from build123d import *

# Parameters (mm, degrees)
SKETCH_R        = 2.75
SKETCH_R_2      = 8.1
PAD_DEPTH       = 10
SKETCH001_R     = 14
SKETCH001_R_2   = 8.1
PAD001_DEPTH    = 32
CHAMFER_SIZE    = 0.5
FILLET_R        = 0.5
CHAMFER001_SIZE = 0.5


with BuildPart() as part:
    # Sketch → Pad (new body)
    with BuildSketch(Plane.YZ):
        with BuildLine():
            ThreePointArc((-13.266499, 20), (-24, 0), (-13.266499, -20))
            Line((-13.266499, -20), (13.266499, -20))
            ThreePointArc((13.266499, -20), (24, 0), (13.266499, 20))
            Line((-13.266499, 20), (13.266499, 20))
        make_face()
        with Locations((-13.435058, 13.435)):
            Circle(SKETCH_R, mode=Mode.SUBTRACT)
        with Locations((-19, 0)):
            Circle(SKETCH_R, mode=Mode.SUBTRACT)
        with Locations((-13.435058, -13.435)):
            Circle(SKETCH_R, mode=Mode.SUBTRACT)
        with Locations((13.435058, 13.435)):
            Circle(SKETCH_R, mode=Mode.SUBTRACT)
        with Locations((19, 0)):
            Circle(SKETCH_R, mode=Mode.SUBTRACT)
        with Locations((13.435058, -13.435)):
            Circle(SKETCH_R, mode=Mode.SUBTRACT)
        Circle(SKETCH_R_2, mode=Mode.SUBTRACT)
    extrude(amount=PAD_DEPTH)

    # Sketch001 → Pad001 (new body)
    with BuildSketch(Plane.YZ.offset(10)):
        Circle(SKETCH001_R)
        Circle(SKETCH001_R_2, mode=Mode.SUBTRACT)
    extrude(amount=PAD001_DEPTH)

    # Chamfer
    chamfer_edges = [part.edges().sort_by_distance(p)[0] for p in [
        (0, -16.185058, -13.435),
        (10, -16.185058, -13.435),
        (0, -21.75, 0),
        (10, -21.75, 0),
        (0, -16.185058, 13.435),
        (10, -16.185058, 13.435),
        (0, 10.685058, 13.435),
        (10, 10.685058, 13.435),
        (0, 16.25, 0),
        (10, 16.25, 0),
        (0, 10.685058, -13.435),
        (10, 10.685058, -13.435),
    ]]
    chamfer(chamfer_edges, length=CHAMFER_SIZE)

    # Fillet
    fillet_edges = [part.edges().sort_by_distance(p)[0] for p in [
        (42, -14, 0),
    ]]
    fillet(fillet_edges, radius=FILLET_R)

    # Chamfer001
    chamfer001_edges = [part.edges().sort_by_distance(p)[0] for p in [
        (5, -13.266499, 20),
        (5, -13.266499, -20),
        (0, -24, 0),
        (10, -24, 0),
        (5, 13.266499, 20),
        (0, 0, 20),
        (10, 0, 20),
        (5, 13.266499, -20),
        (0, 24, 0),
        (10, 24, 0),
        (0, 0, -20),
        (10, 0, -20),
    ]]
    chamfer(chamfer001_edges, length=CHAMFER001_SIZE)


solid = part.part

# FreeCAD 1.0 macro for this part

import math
import FreeCAD as App
import Part
import Sketcher
Q = App.Units.Quantity


def edges_at(feature, points):
    """Names of the edges that pass closest to the given points."""
    edges = feature.Shape.Edges
    near = lambda p: min(range(len(edges)), key=lambda i: edges[i].distToShape(Part.Vertex(*p))[0])
    return sorted({f"Edge{near(p) + 1}" for p in points})

doc = App.newDocument("Part")
body = doc.addObject("PartDesign::Body", "Body")

sketch1 = doc.addObject("Sketcher::SketchObject", "Sketch")
body.addObject(sketch1)
sketch1.AttachmentSupport = (doc.YZ_Plane, [""])
sketch1.MapMode = "FlatFace"
sketch1.addGeometry([
    Part.ArcOfCircle(Part.Circle(App.Vector(0, 0, 0), App.Vector(0, 0, 1), 24), math.radians(124), math.radians(236)),
    Part.LineSegment(App.Vector(-13.3, -20, 0), App.Vector(13.3, -20, 0)),
    Part.ArcOfCircle(Part.Circle(App.Vector(0, 0, 0), App.Vector(0, 0, 1), 24), math.radians(-56), math.radians(56)),
    Part.LineSegment(App.Vector(13.3, 20, 0), App.Vector(-13.3, 20, 0)),
    Part.Circle(App.Vector(-13.4, -13.4, 0), App.Vector(0, 0, 1), 2.8),
    Part.Circle(App.Vector(13.4, -13.4, 0), App.Vector(0, 0, 1), 2.8),
    Part.Circle(App.Vector(-19, 0, 0), App.Vector(0, 0, 1), 2.8),
    Part.Circle(App.Vector(-13.4, 13.4, 0), App.Vector(0, 0, 1), 2.8),
    Part.Circle(App.Vector(0, 0, 0), App.Vector(0, 0, 1), 8.1),
    Part.Circle(App.Vector(19, 0, 0), App.Vector(0, 0, 1), 2.8),
    Part.Circle(App.Vector(13.4, 13.4, 0), App.Vector(0, 0, 1), 2.8),
], False)
sketch1.addConstraint([
    Sketcher.Constraint("Coincident", 0, 2, 1, 1),
    Sketcher.Constraint("Coincident", 1, 2, 2, 1),
    Sketcher.Constraint("Coincident", 2, 2, 3, 1),
    Sketcher.Constraint("Coincident", 3, 2, 0, 1),
    Sketcher.Constraint("Horizontal", 1),
    Sketcher.Constraint("Horizontal", 3),
    Sketcher.Constraint("Coincident", 0, 3, -1, 1),
    Sketcher.Constraint("Coincident", 2, 3, -1, 1),
    Sketcher.Constraint("Coincident", 8, 3, -1, 1),
    Sketcher.Constraint("Equal", 0, 2),
    Sketcher.Constraint("Equal", 4, 5),
    Sketcher.Constraint("Equal", 5, 6),
    Sketcher.Constraint("Equal", 6, 7),
    Sketcher.Constraint("Equal", 7, 9),
    Sketcher.Constraint("Equal", 9, 10),
    Sketcher.Constraint("Symmetric", 5, 3, 7, 3, -1, 1),
    Sketcher.Constraint("Symmetric", 6, 3, 9, 3, -1, 1),
    Sketcher.Constraint("Symmetric", 4, 3, 10, 3, -1, 1),
    Sketcher.Constraint("Symmetric", 4, 3, 5, 3, -2),
    Sketcher.Constraint("PointOnObject", 6, 3, -1),
    Sketcher.Constraint("Vertical", 1, 2, 2, 2),
    Sketcher.Constraint("Radius", 0, Q("24 mm")),
    Sketcher.Constraint("Diameter", 4, Q("5.5 mm")),
    Sketcher.Constraint("Diameter", 8, Q("16.2 mm")),
    Sketcher.Constraint("DistanceX", 6, 3, -1, 1, Q("19 mm")),
    Sketcher.Constraint("DistanceY", 0, 2, -1, 1, Q("20 mm")),
    Sketcher.Constraint("DistanceY", 4, 3, 7, 3, Q("26.87 mm")),
    Sketcher.Constraint("DistanceX", 4, 3, 2, 3, Q("13.435058 mm")),
])
pad1 = doc.addObject("PartDesign::Pad", "Pad")
body.addObject(pad1)
pad1.Profile = sketch1
pad1.Length = 10

sketch2 = doc.addObject("Sketcher::SketchObject", "Sketch001")
body.addObject(sketch2)
sketch2.AttachmentSupport = (doc.YZ_Plane, [""])
sketch2.MapMode = "FlatFace"
sketch2.AttachmentOffset = App.Placement(App.Vector(0, 0, 10), App.Rotation())
sketch2.addGeometry([
    Part.Circle(App.Vector(0, 0, 0), App.Vector(0, 0, 1), 14),
    Part.Circle(App.Vector(0, 0, 0), App.Vector(0, 0, 1), 8),
], False)
sketch2.addConstraint([
    Sketcher.Constraint("Coincident", 0, 3, -1, 1),
    Sketcher.Constraint("Coincident", 1, 3, -1, 1),
    Sketcher.Constraint("Diameter", 0, Q("28 mm")),
    Sketcher.Constraint("Diameter", 1, Q("16.2 mm")),
])
pad2 = doc.addObject("PartDesign::Pad", "Pad001")
body.addObject(pad2)
pad2.Profile = sketch2
pad2.Length = 32
doc.recompute()

chamfer = doc.addObject("PartDesign::Chamfer", "Chamfer")
body.addObject(chamfer)
chamfer.Base = (pad2, edges_at(pad2, [
    (0, -16.185, -13.435),
    (10, -16.185, -13.435),
    (0, -21.75, 0),
    (10, -21.75, 0),
    (0, -16.185, 13.435),
    (10, -16.185, 13.435),
    (0, 10.685, 13.435),
    (10, 10.685, 13.435),
    (0, 16.25, 0),
    (10, 16.25, 0),
    (0, 10.685, -13.435),
    (10, 10.685, -13.435),
]))
chamfer.Size = 0.5
doc.recompute()

fillet = doc.addObject("PartDesign::Fillet", "Fillet")
body.addObject(fillet)
fillet.Base = (chamfer, edges_at(chamfer, [(42, -14, 0)]))
fillet.Radius = 0.5
doc.recompute()

chamfer2 = doc.addObject("PartDesign::Chamfer", "Chamfer001")
body.addObject(chamfer2)
chamfer2.Base = (fillet, edges_at(fillet, [
    (5, -13.266, 20),
    (5, -13.266, -20),
    (0, -24, 0),
    (10, -24, 0),
    (5, 13.266, 20),
    (0, 0, 20),
    (10, 0, 20),
    (5, 13.266, -20),
    (0, 24, 0),
    (10, 24, 0),
    (0, 0, -20),
    (10, 0, -20),
]))
chamfer2.Size = 0.5

doc.recompute()
